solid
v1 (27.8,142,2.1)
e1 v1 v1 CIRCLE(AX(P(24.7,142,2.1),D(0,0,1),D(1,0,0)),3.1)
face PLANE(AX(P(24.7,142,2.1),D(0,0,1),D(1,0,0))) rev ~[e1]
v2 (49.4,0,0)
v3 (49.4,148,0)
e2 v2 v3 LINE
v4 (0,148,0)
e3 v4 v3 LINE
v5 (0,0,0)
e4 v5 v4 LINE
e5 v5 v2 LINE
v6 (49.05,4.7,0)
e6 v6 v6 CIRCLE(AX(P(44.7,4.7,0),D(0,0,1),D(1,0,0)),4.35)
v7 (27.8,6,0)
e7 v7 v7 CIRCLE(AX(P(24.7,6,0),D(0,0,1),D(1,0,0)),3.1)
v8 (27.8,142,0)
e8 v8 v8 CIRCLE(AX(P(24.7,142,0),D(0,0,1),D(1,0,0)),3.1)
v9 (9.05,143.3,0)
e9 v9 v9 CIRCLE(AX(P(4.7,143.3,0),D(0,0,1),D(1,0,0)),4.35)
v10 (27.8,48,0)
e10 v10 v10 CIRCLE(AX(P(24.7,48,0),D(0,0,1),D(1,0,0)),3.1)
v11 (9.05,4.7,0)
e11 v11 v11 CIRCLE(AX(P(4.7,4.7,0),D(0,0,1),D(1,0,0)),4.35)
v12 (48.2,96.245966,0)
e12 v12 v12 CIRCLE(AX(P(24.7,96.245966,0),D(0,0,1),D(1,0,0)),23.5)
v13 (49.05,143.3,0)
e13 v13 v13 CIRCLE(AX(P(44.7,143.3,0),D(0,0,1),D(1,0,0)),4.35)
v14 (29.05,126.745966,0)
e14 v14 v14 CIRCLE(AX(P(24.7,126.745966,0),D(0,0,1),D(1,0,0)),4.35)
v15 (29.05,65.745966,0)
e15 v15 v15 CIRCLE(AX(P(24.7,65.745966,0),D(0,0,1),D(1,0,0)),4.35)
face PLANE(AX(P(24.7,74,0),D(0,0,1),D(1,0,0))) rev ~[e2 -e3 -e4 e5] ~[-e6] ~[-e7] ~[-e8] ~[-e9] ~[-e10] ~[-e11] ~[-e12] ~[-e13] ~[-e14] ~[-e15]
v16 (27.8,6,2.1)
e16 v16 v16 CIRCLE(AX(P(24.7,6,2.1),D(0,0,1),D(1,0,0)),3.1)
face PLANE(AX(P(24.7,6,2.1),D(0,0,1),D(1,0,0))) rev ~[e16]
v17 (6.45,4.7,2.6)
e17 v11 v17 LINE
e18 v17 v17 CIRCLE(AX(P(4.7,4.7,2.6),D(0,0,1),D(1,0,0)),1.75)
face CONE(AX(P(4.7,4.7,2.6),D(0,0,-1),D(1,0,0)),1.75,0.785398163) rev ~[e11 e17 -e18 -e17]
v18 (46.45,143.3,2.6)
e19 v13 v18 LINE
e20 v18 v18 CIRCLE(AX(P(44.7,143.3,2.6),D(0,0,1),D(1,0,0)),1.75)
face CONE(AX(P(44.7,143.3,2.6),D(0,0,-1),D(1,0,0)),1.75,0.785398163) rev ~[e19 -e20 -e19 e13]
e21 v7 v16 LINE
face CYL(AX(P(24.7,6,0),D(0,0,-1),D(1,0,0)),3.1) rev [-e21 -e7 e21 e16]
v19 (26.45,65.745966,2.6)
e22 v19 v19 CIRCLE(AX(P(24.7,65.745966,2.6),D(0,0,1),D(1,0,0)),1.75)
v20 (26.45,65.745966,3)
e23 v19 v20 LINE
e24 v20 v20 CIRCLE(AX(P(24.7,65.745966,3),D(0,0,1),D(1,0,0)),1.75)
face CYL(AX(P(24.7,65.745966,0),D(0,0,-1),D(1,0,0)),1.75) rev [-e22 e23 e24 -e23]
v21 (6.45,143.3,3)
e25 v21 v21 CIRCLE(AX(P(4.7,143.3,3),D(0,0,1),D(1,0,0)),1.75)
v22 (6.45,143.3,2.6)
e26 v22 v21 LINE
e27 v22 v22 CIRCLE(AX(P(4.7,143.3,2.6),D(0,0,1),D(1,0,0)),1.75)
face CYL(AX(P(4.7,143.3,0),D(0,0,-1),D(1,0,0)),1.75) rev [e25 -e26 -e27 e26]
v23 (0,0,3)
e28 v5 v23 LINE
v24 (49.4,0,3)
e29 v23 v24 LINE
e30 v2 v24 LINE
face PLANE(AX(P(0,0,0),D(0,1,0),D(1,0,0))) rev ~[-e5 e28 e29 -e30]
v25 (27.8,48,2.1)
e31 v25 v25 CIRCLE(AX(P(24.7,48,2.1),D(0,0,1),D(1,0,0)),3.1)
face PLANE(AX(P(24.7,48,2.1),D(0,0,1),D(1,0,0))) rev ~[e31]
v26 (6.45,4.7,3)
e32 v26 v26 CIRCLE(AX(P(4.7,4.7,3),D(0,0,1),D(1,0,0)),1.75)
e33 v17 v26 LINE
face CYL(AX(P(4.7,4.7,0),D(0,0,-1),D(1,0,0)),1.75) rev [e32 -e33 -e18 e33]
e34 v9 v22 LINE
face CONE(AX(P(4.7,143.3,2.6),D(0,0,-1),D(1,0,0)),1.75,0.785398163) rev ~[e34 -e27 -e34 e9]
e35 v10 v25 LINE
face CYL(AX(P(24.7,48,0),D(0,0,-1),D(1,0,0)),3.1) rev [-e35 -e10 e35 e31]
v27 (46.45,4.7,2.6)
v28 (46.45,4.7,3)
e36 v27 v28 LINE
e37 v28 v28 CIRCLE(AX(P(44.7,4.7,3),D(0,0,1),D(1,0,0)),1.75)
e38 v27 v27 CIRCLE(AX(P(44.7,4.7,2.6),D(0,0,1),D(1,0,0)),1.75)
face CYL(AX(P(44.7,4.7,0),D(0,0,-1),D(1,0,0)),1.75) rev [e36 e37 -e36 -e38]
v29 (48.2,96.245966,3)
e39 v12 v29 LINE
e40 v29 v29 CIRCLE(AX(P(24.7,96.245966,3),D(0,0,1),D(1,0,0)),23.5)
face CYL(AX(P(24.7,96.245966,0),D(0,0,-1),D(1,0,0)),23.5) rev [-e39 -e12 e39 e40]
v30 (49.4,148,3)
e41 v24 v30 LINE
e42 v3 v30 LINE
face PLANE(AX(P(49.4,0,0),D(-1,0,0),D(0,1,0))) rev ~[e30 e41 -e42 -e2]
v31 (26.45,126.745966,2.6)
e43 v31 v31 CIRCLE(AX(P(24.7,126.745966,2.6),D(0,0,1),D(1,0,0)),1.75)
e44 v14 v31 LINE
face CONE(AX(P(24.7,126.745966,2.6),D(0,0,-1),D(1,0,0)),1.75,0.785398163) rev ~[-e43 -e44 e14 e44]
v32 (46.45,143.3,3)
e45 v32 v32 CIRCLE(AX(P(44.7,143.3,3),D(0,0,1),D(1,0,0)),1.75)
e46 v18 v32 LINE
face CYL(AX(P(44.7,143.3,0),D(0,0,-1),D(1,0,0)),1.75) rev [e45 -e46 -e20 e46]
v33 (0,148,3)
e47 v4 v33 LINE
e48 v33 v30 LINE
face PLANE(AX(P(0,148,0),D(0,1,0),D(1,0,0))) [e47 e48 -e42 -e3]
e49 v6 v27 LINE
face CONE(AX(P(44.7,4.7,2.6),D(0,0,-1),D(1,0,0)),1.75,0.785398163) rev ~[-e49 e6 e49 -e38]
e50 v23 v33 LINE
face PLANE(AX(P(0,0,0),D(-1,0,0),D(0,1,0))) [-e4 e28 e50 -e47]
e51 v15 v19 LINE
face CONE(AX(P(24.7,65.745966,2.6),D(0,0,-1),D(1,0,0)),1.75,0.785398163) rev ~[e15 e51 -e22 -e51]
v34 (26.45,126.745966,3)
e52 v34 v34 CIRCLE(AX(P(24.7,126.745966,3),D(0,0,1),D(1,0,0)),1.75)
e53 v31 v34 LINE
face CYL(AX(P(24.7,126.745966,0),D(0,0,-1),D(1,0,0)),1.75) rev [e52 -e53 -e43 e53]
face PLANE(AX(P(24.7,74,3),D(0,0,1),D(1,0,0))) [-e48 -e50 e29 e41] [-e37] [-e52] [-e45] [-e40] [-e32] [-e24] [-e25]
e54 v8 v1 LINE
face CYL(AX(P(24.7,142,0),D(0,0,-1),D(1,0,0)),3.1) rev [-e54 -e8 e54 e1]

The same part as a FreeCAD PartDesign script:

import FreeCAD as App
import Part
import Sketcher


def edges_at(feature, points):
    """Names of the edges that pass closest to the given points."""
    edges = feature.Shape.Edges
    near = lambda p: min(range(len(edges)), key=lambda i: edges[i].distToShape(Part.Vertex(*p))[0])
    return sorted({f"Edge{near(p) + 1}" for p in points})


def add_polygon(sketch, points):
    """Adds a closed chain of lines whose ends are joined by coincident constraints."""
    first, n = sketch.GeometryCount, len(points)
    for a, b in zip(points, points[1:] + points[:1]):
        sketch.addGeometry(Part.LineSegment(App.Vector(*a, 0), App.Vector(*b, 0)), False)
    for i in range(n):
        sketch.addConstraint(Sketcher.Constraint("Coincident", first + i, 2, first + (i + 1) % n, 1))

doc = App.newDocument("Part")
body = doc.addObject("PartDesign::Body", "Body")

sketch1 = body.newObject("Sketcher::SketchObject", "Sketch")
sketch1.AttachmentSupport = (doc.getObject("XY_Plane"), [""])
sketch1.MapMode = "FlatFace"
add_polygon(sketch1, [(0, 148), (0, 0), (49.4, 0), (49.4, 148)])
sketch1.addGeometry(Part.Circle(App.Vector(4.7, 4.7, 0), App.Vector(0, 0, 1), 1.75), False)
sketch1.addGeometry(Part.Circle(App.Vector(44.7, 4.7, 0), App.Vector(0, 0, 1), 1.75), False)
sketch1.addGeometry(Part.Circle(App.Vector(24.7, 65.745966, 0), App.Vector(0, 0, 1), 1.75), False)
sketch1.addGeometry(Part.Circle(App.Vector(4.7, 143.3, 0), App.Vector(0, 0, 1), 1.75), False)
sketch1.addGeometry(Part.Circle(App.Vector(24.7, 96.245966, 0), App.Vector(0, 0, 1), 23.5), False)
sketch1.addGeometry(Part.Circle(App.Vector(24.7, 126.745966, 0), App.Vector(0, 0, 1), 1.75), False)
sketch1.addGeometry(Part.Circle(App.Vector(44.7, 143.3, 0), App.Vector(0, 0, 1), 1.75), False)
sketch1.addConstraint(Sketcher.Constraint("Vertical", 0))
sketch1.addConstraint(Sketcher.Constraint("Horizontal", 1))
sketch1.addConstraint(Sketcher.Constraint("Vertical", 2))
sketch1.addConstraint(Sketcher.Constraint("Horizontal", 3))
sketch1.addConstraint(Sketcher.Constraint("Coincident", 0, 2, -1, 1))
sketch1.addConstraint(Sketcher.Constraint("Equal", 4, 5))
sketch1.addConstraint(Sketcher.Constraint("Equal", 5, 6))
sketch1.addConstraint(Sketcher.Constraint("Equal", 6, 7))
sketch1.addConstraint(Sketcher.Constraint("Equal", 7, 9))
sketch1.addConstraint(Sketcher.Constraint("Equal", 9, 10))
sketch1.addConstraint(Sketcher.Constraint("Horizontal", 4, 3, 5, 3))
sketch1.addConstraint(Sketcher.Constraint("Horizontal", 7, 3, 10, 3))
sketch1.addConstraint(Sketcher.Constraint("Vertical", 4, 3, 7, 3))
sketch1.addConstraint(Sketcher.Constraint("Vertical", 6, 3, 8, 3))
sketch1.addConstraint(Sketcher.Constraint("Vertical", 8, 3, 9, 3))
sketch1.addConstraint(Sketcher.Constraint("Vertical", 5, 3, 10, 3))
sketch1.addConstraint(Sketcher.Constraint("Diameter", 8, 47.0))
sketch1.addConstraint(Sketcher.Constraint("Diameter", 4, 3.5))
sketch1.addConstraint(Sketcher.Constraint("DistanceY", 0, 2, 0, 1, 148.0))
sketch1.addConstraint(Sketcher.Constraint("DistanceX", 1, 1, 1, 2, 49.4))
sketch1.addConstraint(Sketcher.Constraint("DistanceX", 4, 3, 5, 3, 40.0))
sketch1.addConstraint(Sketcher.Constraint("DistanceX", 4, 3, 6, 3, 20.0))
sketch1.addConstraint(Sketcher.Constraint("DistanceY", 6, 3, 9, 3, 61.0))
sketch1.addConstraint(Sketcher.Constraint("DistanceX", -1, 1, 4, 3, 4.7))
sketch1.addConstraint(Sketcher.Constraint("DistanceY", -1, 1, 4, 3, 4.7))
sketch1.addConstraint(Sketcher.Constraint("DistanceY", -1, 1, 7, 3, 143.3))
sketch1.addConstraint(Sketcher.Constraint("DistanceY", 6, 3, 8, 3, 30.5))
sketch1.addConstraint(Sketcher.Constraint("DistanceY", -1, 1, 6, 3, 65.745966))
pad1 = body.newObject("PartDesign::Pad", "Pad")
pad1.Profile = sketch1
pad1.Length = 3

sketch2 = body.newObject("Sketcher::SketchObject", "Sketch001")
sketch2.AttachmentSupport = (doc.getObject("XY_Plane"), [""])
sketch2.MapMode = "FlatFace"
sketch2.addGeometry(Part.Circle(App.Vector(24.7, 142, 0), App.Vector(0, 0, 1), 3.1), False)
sketch2.addGeometry(Part.Circle(App.Vector(24.7, 48, 0), App.Vector(0, 0, 1), 3.1), False)
sketch2.addGeometry(Part.Circle(App.Vector(24.7, 6, 0), App.Vector(0, 0, 1), 3.1), False)
sketch2.addConstraint(Sketcher.Constraint("Equal", 0, 1))
sketch2.addConstraint(Sketcher.Constraint("Equal", 1, 2))
sketch2.addConstraint(Sketcher.Constraint("Vertical", 0, 3, 1, 3))
sketch2.addConstraint(Sketcher.Constraint("Vertical", 1, 3, 2, 3))
sketch2.addConstraint(Sketcher.Constraint("Diameter", 0, 6.2))
sketch2.addConstraint(Sketcher.Constraint("DistanceY", -1, 1, 0, 3, 142.0))
sketch2.addConstraint(Sketcher.Constraint("DistanceY", -1, 1, 1, 3, 48.0))
sketch2.addConstraint(Sketcher.Constraint("DistanceY", -1, 1, 2, 3, 6.0))
sketch2.addConstraint(Sketcher.Constraint("DistanceX", -1, 1, 0, 3, 24.7))
pocket1 = body.newObject("PartDesign::Pocket", "Pocket")
pocket1.Profile = sketch2
pocket1.Length = 2.1
pocket1.Reversed = True
doc.recompute()

chamfer = body.newObject("PartDesign::Chamfer", "Chamfer")
chamfer.Base = (pocket1, edges_at(pocket1, [
    (42.95, 143.3, 0),
    (2.95, 143.3, 0),
    (2.95, 4.7, 0),
    (22.95, 65.746, 0),
    (22.95, 126.746, 0),
    (42.95, 4.7, 0),
]))
chamfer.Size = 2.6

doc.recompute()
